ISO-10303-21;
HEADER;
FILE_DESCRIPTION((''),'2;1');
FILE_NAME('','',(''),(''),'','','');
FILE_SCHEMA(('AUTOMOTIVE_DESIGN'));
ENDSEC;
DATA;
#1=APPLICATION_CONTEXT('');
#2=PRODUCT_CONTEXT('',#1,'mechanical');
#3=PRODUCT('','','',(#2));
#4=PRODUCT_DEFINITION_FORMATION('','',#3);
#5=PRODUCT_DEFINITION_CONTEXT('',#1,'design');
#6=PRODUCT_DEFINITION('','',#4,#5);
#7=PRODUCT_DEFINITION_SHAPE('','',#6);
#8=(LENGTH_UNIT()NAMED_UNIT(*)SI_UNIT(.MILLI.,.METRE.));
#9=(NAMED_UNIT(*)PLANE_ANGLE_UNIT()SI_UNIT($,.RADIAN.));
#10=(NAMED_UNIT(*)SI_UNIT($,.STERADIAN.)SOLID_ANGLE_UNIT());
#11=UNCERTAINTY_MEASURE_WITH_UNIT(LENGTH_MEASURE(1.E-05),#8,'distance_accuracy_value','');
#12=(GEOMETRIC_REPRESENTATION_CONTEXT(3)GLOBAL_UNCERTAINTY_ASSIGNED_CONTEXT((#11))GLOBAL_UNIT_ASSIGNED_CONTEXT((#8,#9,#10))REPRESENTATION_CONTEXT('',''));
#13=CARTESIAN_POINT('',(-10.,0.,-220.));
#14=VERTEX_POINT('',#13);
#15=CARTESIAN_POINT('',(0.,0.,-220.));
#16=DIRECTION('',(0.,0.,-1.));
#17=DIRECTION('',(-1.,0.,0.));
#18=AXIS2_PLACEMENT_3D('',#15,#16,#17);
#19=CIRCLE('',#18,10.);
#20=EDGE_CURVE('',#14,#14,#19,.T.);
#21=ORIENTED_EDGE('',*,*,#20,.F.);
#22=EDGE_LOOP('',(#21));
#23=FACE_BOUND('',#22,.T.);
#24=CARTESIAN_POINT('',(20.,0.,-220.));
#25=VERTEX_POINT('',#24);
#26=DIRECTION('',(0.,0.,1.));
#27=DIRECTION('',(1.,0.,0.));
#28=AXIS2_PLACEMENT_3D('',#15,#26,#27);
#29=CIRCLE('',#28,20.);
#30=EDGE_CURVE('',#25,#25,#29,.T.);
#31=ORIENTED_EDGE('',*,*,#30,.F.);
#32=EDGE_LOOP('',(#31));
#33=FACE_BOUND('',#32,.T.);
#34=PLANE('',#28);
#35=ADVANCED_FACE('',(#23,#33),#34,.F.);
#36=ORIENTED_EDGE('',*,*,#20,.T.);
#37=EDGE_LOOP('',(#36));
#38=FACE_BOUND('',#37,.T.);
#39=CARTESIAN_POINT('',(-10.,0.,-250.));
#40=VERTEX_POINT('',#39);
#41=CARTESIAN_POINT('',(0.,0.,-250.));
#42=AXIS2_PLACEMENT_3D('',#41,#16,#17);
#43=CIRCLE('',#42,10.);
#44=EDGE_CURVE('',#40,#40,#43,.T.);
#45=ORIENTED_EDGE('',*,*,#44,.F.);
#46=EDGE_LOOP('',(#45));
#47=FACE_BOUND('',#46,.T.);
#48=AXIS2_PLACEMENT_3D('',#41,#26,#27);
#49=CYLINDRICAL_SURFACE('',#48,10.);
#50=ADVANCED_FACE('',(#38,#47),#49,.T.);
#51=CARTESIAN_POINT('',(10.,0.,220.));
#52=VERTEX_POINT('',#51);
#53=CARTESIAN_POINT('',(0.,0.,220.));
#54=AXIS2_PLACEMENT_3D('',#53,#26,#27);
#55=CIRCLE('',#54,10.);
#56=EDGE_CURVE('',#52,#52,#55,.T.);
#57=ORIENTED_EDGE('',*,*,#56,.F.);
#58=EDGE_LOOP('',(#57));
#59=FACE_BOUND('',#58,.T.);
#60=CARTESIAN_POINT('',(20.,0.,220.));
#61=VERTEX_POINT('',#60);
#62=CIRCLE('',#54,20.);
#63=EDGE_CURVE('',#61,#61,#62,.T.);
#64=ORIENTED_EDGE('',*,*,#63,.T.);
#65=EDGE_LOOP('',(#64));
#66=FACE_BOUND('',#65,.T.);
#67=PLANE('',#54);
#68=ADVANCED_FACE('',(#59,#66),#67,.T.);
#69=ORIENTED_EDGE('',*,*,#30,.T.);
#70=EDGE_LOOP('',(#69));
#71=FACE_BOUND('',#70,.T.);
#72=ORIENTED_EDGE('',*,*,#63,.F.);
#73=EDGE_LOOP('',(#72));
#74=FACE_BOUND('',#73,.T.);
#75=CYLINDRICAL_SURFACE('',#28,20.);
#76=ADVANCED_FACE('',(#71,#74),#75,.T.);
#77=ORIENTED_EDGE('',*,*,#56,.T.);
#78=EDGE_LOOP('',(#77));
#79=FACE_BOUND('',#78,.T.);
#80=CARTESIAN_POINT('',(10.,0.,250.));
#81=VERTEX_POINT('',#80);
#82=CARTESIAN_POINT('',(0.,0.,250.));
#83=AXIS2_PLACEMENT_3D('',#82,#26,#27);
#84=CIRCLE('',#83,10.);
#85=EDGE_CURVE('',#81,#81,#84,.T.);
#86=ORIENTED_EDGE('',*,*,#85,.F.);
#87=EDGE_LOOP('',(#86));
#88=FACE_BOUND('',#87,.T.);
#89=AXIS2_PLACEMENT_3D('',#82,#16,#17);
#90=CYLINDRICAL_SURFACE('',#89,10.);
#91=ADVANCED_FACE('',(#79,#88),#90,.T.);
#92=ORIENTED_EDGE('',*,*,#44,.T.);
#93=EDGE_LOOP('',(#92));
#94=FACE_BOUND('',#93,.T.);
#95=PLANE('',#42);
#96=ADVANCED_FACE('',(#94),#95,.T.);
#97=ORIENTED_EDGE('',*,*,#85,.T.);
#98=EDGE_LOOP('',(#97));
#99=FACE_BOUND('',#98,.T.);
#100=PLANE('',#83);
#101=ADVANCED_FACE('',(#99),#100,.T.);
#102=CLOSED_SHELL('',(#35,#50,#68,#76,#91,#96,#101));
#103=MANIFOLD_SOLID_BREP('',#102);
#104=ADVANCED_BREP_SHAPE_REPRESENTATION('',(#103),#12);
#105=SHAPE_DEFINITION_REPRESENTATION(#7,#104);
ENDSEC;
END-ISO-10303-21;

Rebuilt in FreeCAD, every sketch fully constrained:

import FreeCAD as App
import Part
import Sketcher
from FreeCAD import Vector
Q = App.Units.Quantity

doc = App.newDocument("Part")
params = doc.addObject("Spreadsheet::Sheet", "Params")
for row, (alias, value) in enumerate([
    ("sketch1_diameter", "40 mm"),
    ("pad1_length", "220 mm"),
    ("pad1_length2", "220 mm"),
    ("sketch2_diameter", "20 mm"),
    ("pad2_length", "30 mm"),
    ("sketch3_diameter", "20 mm"),
    ("pad3_length", "30 mm"),
], start=1):
    params.set(f"A{row}", alias)
    params.set(f"B{row}", "=" + value)
    params.setAlias(f"B{row}", alias)

body = doc.addObject("PartDesign::Body", "Body")

# Sketch on XY plane
sketch1 = body.newObject("Sketcher::SketchObject", "Sketch")
sketch1.AttachmentSupport = (doc.getObject("XY_Plane"), [""])
sketch1.MapMode = "FlatFace"
sketch1.addGeometry(Part.Circle(Vector(0, 0, 0), Vector(0, 0, 1), 20), False)
sketch1.addConstraint([
    Sketcher.Constraint("Coincident", 0, 3, -1, 1),
    Sketcher.Constraint("Diameter", 0, Q("40 mm")),
])
sketch1.setExpression("Constraints[1]", "Params.sketch1_diameter")
pad1 = body.newObject("PartDesign::Pad", "Pad")
pad1.Profile = sketch1
pad1.Type = "TwoLengths"
pad1.setExpression("Length", "Params.pad1_length")
pad1.setExpression("Length2", "Params.pad1_length2")

# Sketch on XY plane
sketch2 = body.newObject("Sketcher::SketchObject", "Sketch001")
sketch2.AttachmentSupport = (doc.getObject("XY_Plane"), [""])
sketch2.MapMode = "FlatFace"
sketch2.AttachmentOffset = App.Placement(Vector(0, 0, 220), App.Rotation())
sketch2.addGeometry(Part.Circle(Vector(0, 0, 0), Vector(0, 0, 1), 10), False)
sketch2.addConstraint([
    Sketcher.Constraint("Coincident", 0, 3, -1, 1),
    Sketcher.Constraint("Diameter", 0, Q("20 mm")),
])
sketch2.setExpression("Constraints[1]", "Params.sketch2_diameter")
pad2 = body.newObject("PartDesign::Pad", "Pad001")
pad2.Profile = sketch2
pad2.setExpression("Length", "Params.pad2_length")

# Sketch on XY plane
sketch3 = body.newObject("Sketcher::SketchObject", "Sketch002")
sketch3.AttachmentSupport = (doc.getObject("XY_Plane"), [""])
sketch3.MapMode = "FlatFace"
sketch3.AttachmentOffset = App.Placement(Vector(0, 0, -250), App.Rotation())
sketch3.addGeometry(Part.Circle(Vector(0, 0, 0), Vector(0, 0, 1), 10), False)
sketch3.addConstraint([
    Sketcher.Constraint("Coincident", 0, 3, -1, 1),
    Sketcher.Constraint("Diameter", 0, Q("20 mm")),
])
sketch3.setExpression("Constraints[1]", "Params.sketch3_diameter")
pad3 = body.newObject("PartDesign::Pad", "Pad002")
pad3.Profile = sketch3
pad3.setExpression("Length", "Params.pad3_length")

doc.recompute()
